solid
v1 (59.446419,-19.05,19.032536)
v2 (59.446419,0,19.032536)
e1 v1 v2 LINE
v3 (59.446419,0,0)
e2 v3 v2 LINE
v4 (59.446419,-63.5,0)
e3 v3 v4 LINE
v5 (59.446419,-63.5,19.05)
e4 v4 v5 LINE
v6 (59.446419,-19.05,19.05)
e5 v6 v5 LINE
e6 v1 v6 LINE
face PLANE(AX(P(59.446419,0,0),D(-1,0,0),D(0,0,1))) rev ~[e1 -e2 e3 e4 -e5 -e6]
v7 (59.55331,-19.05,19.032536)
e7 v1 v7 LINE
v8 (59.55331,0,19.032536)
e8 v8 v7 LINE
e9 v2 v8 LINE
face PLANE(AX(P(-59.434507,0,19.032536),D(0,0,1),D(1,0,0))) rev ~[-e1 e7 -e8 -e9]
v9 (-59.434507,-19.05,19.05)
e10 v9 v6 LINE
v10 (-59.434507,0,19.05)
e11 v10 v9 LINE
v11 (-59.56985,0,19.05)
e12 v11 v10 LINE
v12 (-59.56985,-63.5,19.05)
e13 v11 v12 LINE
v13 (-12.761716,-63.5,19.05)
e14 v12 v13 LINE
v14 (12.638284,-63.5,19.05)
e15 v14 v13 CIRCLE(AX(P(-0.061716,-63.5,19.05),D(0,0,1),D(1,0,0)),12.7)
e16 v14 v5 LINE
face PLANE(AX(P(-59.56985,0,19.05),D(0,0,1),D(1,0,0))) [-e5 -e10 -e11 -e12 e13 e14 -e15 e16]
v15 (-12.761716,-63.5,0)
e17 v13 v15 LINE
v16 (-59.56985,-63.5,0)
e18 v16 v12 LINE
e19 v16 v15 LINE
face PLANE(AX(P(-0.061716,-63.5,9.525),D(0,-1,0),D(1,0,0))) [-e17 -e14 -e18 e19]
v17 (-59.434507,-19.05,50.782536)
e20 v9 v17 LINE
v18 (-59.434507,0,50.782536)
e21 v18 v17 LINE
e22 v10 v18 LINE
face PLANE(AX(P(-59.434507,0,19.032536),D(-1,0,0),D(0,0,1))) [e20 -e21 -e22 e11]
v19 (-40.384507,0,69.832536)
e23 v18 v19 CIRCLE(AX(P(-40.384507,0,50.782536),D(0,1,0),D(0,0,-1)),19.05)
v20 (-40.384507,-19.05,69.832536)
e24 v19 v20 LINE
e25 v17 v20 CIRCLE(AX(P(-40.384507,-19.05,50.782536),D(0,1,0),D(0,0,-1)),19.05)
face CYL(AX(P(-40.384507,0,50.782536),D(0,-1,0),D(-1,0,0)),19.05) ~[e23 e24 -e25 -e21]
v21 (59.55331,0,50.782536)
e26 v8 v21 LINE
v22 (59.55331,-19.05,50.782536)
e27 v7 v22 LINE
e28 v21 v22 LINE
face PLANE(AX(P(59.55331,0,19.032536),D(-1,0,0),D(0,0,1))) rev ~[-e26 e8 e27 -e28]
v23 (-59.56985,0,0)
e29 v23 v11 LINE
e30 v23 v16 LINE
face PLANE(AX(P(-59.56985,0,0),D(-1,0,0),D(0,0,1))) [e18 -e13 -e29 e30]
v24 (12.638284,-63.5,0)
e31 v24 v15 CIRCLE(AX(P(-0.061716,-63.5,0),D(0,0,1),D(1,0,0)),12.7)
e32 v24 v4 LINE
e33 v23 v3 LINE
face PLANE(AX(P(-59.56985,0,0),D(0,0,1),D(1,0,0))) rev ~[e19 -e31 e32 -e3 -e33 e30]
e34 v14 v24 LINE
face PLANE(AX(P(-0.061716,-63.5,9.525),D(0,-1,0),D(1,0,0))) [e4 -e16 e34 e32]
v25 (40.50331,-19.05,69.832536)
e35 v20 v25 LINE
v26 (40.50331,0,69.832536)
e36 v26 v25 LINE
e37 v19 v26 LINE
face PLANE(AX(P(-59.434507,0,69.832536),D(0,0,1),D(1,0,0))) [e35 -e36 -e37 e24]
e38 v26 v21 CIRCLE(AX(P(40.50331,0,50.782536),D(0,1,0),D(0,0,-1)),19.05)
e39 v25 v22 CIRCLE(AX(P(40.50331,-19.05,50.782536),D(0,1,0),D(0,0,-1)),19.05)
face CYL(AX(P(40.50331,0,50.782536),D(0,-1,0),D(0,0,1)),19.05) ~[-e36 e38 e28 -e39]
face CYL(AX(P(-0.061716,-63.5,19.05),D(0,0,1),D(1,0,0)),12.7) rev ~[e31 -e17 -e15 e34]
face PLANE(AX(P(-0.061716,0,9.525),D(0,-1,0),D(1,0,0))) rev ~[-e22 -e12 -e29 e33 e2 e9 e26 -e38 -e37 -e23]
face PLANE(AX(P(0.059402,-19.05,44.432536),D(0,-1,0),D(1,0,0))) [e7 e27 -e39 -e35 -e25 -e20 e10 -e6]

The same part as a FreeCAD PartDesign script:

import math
import FreeCAD as App
import Part
import Sketcher

V = App.Vector
Q = App.Units.Quantity


def edges_at(feature, points):
    """Names of the edges that pass closest to the given points."""
    edges = feature.Shape.Edges
    near = lambda p: min(range(len(edges)), key=lambda i: edges[i].distToShape(Part.Vertex(*p))[0])
    return sorted({f"Edge{near(p) + 1}" for p in points})

doc = App.newDocument("Part")
body = doc.addObject("PartDesign::Body", "Body")

# Sketch on XZ plane
sketch1 = doc.addObject("Sketcher::SketchObject", "Sketch")
body.addObject(sketch1)
sketch1.AttachmentSupport = (doc.XZ_Plane, [""])
sketch1.MapMode = "FlatFace"
sketch1.addGeometry(Part.LineSegment(V(-60, 19, 0), V(-60, 0, 0)), False)
sketch1.addGeometry(Part.LineSegment(V(-60, 0, 0), V(59, 0, 0)), False)
sketch1.addGeometry(Part.LineSegment(V(59, 0, 0), V(59, 19, 0)), False)
sketch1.addGeometry(Part.LineSegment(V(59, 19, 0), V(-60, 19, 0)), False)
sketch1.addConstraint(Sketcher.Constraint("Coincident", 0, 2, 1, 1))
sketch1.addConstraint(Sketcher.Constraint("Coincident", 1, 2, 2, 1))
sketch1.addConstraint(Sketcher.Constraint("Coincident", 2, 2, 3, 1))
sketch1.addConstraint(Sketcher.Constraint("Coincident", 3, 2, 0, 1))
sketch1.addConstraint(Sketcher.Constraint("Vertical", 0))
sketch1.addConstraint(Sketcher.Constraint("Horizontal", 1))
sketch1.addConstraint(Sketcher.Constraint("Vertical", 2))
sketch1.addConstraint(Sketcher.Constraint("Horizontal", 3))
sketch1.addConstraint(Sketcher.Constraint("PointOnObject", 0, 2, -1))
sketch1.addConstraint(Sketcher.Constraint("DistanceY", 0, 2, 0, 1, Q("0.75 in")))
sketch1.addConstraint(Sketcher.Constraint("DistanceX", 1, 1, 1, 2, 119.016269))
sketch1.addConstraint(Sketcher.Constraint("DistanceX", 0, 2, -1, 1, 59.56985))
pad1 = doc.addObject("PartDesign::Pad", "Pad")
body.addObject(pad1)
pad1.Profile = sketch1
pad1.Length = Q("2.5 in")

# Sketch on XZ plane
sketch2 = doc.addObject("Sketcher::SketchObject", "Sketch001")
body.addObject(sketch2)
sketch2.AttachmentSupport = (doc.XZ_Plane, [""])
sketch2.MapMode = "FlatFace"
sketch2.addGeometry(Part.LineSegment(V(-59, 70, 0), V(-59, 19, 0)), False)
sketch2.addGeometry(Part.LineSegment(V(-59, 19, 0), V(60, 19, 0)), False)
sketch2.addGeometry(Part.LineSegment(V(60, 19, 0), V(60, 70, 0)), False)
sketch2.addGeometry(Part.LineSegment(V(60, 70, 0), V(-59, 70, 0)), False)
sketch2.addConstraint(Sketcher.Constraint("Coincident", 0, 2, 1, 1))
sketch2.addConstraint(Sketcher.Constraint("Coincident", 1, 2, 2, 1))
sketch2.addConstraint(Sketcher.Constraint("Coincident", 2, 2, 3, 1))
sketch2.addConstraint(Sketcher.Constraint("Coincident", 3, 2, 0, 1))
sketch2.addConstraint(Sketcher.Constraint("Vertical", 0))
sketch2.addConstraint(Sketcher.Constraint("Horizontal", 1))
sketch2.addConstraint(Sketcher.Constraint("Vertical", 2))
sketch2.addConstraint(Sketcher.Constraint("Horizontal", 3))
sketch2.addConstraint(Sketcher.Constraint("DistanceY", 0, 2, 0, 1, Q("2 in")))
sketch2.addConstraint(Sketcher.Constraint("DistanceX", 1, 1, 1, 2, 118.987817))
sketch2.addConstraint(Sketcher.Constraint("DistanceX", -1, 1, 1, 2, 59.55331))
sketch2.addConstraint(Sketcher.Constraint("DistanceY", -1, 1, 0, 2, 19.032536))
pad2 = doc.addObject("PartDesign::Pad", "Pad001")
body.addObject(pad2)
pad2.Profile = sketch2
pad2.Length = Q("0.75 in")

# Sketch on XY plane
sketch3 = doc.addObject("Sketcher::SketchObject", "Sketch002")
body.addObject(sketch3)
sketch3.AttachmentSupport = (doc.XY_Plane, [""])
sketch3.MapMode = "FlatFace"
sketch3.AttachmentOffset = App.Placement(V(0, 0, 0.75 * 25.4), App.Rotation())
sketch3.addGeometry(Part.LineSegment(V(-13, -64, 0), V(13, -64, 0)), False)
sketch3.addGeometry(Part.ArcOfCircle(Part.Circle(V(0, -64, 0), V(0, 0, 1), 13), math.radians(0), math.radians(180)), False)
sketch3.addConstraint(Sketcher.Constraint("Coincident", 0, 1, 1, 2))
sketch3.addConstraint(Sketcher.Constraint("Coincident", 1, 1, 0, 2))
sketch3.addConstraint(Sketcher.Constraint("Horizontal", 0))
sketch3.addConstraint(Sketcher.Constraint("Horizontal", 1, 3, 0, 1))
sketch3.addConstraint(Sketcher.Constraint("Radius", 1, Q("0.5 in")))
sketch3.addConstraint(Sketcher.Constraint("DistanceY", 1, 3, -1, 1, Q("2.5 in")))
sketch3.addConstraint(Sketcher.Constraint("DistanceX", 1, 3, -1, 1, 0.061716))
pocket1 = doc.addObject("PartDesign::Pocket", "Pocket")
body.addObject(pocket1)
pocket1.Profile = sketch3
pocket1.Length = Q("1 in")
doc.recompute()

fillet = doc.addObject("PartDesign::Fillet", "Fillet")
body.addObject(fillet)
fillet.Base = (pocket1, edges_at(pocket1, [(-59.435, -9.525, 69.833)]))
fillet.Radius = Q("0.75 in")
doc.recompute()

fillet2 = doc.addObject("PartDesign::Fillet", "Fillet001")
body.addObject(fillet2)
fillet2.Base = (fillet, edges_at(fillet, [(59.553, -9.525, 69.833)]))
fillet2.Radius = Q("0.75 in")

doc.recompute()
